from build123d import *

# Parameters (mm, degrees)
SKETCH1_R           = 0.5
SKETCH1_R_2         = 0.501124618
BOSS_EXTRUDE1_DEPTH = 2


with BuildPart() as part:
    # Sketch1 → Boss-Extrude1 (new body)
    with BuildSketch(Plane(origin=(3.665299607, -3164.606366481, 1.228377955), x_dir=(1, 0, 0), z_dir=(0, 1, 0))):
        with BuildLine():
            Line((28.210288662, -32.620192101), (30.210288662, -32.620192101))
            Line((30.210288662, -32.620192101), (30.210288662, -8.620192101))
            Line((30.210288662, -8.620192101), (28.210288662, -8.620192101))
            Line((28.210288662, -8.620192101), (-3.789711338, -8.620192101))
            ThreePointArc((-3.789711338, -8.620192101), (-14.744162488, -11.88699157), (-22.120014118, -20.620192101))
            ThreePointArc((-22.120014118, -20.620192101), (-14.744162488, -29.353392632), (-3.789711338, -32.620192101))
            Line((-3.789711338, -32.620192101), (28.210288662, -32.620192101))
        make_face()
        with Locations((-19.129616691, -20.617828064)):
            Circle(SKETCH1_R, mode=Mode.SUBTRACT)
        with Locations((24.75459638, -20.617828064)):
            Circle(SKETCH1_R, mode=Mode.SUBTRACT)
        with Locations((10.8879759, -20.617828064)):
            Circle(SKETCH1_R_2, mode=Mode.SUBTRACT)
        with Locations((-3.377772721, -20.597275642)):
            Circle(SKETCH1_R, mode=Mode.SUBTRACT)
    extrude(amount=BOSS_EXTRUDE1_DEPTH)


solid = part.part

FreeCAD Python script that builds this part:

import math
import FreeCAD as App
import Part
import Sketcher
from FreeCAD import Vector

doc = App.newDocument("Part")
body = doc.addObject("PartDesign::Body", "Body")

# Sketch on XZ plane
sketch1 = doc.addObject("Sketcher::SketchObject", "Sketch")
body.addObject(sketch1)
sketch1.AttachmentSupport = (doc.XZ_Plane, [""])
sketch1.MapMode = "FlatFace"
sketch1.AttachmentOffset = App.Placement(Vector(0, 0, 3164.606366), App.Rotation())
sketch1.addGeometry(Part.LineSegment(Vector(33.875588, 33.84857, 0), Vector(33.875588, 9.84857, 0)), False)
sketch1.addGeometry(Part.LineSegment(Vector(33.875588, 9.84857, 0), Vector(-0.124412, 9.84857, 0)), False)
sketch1.addGeometry(Part.ArcOfCircle(Part.Circle(Vector(-0.124412, 29.84857, 0), Vector(0, 0, 1), 20), math.radians(-156.421822), math.radians(-90)), False)
sketch1.addGeometry(Part.ArcOfCircle(Part.Circle(Vector(-0.124412, 13.84857, 0), Vector(0, 0, 1), 20), math.radians(90), math.radians(156.421822)), False)
sketch1.addGeometry(Part.LineSegment(Vector(-0.124412, 33.84857, 0), Vector(33.875588, 33.84857, 0)), False)
sketch1.addGeometry(Part.Circle(Vector(-15.464317, 21.846206, 0), Vector(0, 0, 1), 0.5), False)
sketch1.addGeometry(Part.Circle(Vector(14.553276, 21.846206, 0), Vector(0, 0, 1), 0.501125), False)
sketch1.addGeometry(Part.Circle(Vector(28.419896, 21.846206, 0), Vector(0, 0, 1), 0.5), False)
sketch1.addGeometry(Part.Circle(Vector(0.287527, 21.825654, 0), Vector(0, 0, 1), 0.5), False)
sketch1.addConstraint(Sketcher.Constraint("Coincident", 0, 2, 1, 1))
sketch1.addConstraint(Sketcher.Constraint("Tangent", 1, 2, 2, 2))
sketch1.addConstraint(Sketcher.Constraint("Coincident", 2, 1, 3, 2))
sketch1.addConstraint(Sketcher.Constraint("Tangent", 3, 1, 4, 1))
sketch1.addConstraint(Sketcher.Constraint("Coincident", 4, 2, 0, 1))
sketch1.addConstraint(Sketcher.Constraint("Vertical", 0))
sketch1.addConstraint(Sketcher.Constraint("Horizontal", 1))
sketch1.addConstraint(Sketcher.Constraint("Horizontal", 4))
sketch1.addConstraint(Sketcher.Constraint("Equal", 2, 3))
sketch1.addConstraint(Sketcher.Constraint("Equal", 5, 7))
sketch1.addConstraint(Sketcher.Constraint("Equal", 7, 8))
sketch1.addConstraint(Sketcher.Constraint("Horizontal", 5, 3, 6, 3))
sketch1.addConstraint(Sketcher.Constraint("Horizontal", 6, 3, 7, 3))
sketch1.addConstraint(Sketcher.Constraint("Vertical", 2, 3, 3, 3))
sketch1.addConstraint(Sketcher.Constraint("Diameter", 5, 1.0))
sketch1.addConstraint(Sketcher.Constraint("Radius", 2, 20.0))
sketch1.addConstraint(Sketcher.Constraint("DistanceX", 1, 2, 1, 1, 34.0))
sketch1.addConstraint(Sketcher.Constraint("DistanceY", 0, 2, 0, 1, 24.0))
sketch1.addConstraint(Sketcher.Constraint("Diameter", 6, 1.002249))
sketch1.addConstraint(Sketcher.Constraint("DistanceX", 2, 3, -1, 1, 0.124412))
sketch1.addConstraint(Sketcher.Constraint("DistanceY", -1, 1, 2, 3, 29.84857))
sketch1.addConstraint(Sketcher.Constraint("DistanceX", 6, 3, 7, 3, 13.86662))
sketch1.addConstraint(Sketcher.Constraint("DistanceX", 3, 3, 8, 3, 0.411939))
sketch1.addConstraint(Sketcher.Constraint("DistanceX", 8, 3, 6, 3, 14.265749))
sketch1.addConstraint(Sketcher.Constraint("DistanceX", 5, 3, -1, 1, 15.464317))
sketch1.addConstraint(Sketcher.Constraint("DistanceY", -1, 1, 5, 3, 21.846206))
sketch1.addConstraint(Sketcher.Constraint("DistanceY", -1, 1, 8, 3, 21.825654))
pad1 = doc.addObject("PartDesign::Pad", "Pad")
body.addObject(pad1)
pad1.Profile = sketch1
pad1.Length = 2
pad1.Reversed = True

doc.recompute()
